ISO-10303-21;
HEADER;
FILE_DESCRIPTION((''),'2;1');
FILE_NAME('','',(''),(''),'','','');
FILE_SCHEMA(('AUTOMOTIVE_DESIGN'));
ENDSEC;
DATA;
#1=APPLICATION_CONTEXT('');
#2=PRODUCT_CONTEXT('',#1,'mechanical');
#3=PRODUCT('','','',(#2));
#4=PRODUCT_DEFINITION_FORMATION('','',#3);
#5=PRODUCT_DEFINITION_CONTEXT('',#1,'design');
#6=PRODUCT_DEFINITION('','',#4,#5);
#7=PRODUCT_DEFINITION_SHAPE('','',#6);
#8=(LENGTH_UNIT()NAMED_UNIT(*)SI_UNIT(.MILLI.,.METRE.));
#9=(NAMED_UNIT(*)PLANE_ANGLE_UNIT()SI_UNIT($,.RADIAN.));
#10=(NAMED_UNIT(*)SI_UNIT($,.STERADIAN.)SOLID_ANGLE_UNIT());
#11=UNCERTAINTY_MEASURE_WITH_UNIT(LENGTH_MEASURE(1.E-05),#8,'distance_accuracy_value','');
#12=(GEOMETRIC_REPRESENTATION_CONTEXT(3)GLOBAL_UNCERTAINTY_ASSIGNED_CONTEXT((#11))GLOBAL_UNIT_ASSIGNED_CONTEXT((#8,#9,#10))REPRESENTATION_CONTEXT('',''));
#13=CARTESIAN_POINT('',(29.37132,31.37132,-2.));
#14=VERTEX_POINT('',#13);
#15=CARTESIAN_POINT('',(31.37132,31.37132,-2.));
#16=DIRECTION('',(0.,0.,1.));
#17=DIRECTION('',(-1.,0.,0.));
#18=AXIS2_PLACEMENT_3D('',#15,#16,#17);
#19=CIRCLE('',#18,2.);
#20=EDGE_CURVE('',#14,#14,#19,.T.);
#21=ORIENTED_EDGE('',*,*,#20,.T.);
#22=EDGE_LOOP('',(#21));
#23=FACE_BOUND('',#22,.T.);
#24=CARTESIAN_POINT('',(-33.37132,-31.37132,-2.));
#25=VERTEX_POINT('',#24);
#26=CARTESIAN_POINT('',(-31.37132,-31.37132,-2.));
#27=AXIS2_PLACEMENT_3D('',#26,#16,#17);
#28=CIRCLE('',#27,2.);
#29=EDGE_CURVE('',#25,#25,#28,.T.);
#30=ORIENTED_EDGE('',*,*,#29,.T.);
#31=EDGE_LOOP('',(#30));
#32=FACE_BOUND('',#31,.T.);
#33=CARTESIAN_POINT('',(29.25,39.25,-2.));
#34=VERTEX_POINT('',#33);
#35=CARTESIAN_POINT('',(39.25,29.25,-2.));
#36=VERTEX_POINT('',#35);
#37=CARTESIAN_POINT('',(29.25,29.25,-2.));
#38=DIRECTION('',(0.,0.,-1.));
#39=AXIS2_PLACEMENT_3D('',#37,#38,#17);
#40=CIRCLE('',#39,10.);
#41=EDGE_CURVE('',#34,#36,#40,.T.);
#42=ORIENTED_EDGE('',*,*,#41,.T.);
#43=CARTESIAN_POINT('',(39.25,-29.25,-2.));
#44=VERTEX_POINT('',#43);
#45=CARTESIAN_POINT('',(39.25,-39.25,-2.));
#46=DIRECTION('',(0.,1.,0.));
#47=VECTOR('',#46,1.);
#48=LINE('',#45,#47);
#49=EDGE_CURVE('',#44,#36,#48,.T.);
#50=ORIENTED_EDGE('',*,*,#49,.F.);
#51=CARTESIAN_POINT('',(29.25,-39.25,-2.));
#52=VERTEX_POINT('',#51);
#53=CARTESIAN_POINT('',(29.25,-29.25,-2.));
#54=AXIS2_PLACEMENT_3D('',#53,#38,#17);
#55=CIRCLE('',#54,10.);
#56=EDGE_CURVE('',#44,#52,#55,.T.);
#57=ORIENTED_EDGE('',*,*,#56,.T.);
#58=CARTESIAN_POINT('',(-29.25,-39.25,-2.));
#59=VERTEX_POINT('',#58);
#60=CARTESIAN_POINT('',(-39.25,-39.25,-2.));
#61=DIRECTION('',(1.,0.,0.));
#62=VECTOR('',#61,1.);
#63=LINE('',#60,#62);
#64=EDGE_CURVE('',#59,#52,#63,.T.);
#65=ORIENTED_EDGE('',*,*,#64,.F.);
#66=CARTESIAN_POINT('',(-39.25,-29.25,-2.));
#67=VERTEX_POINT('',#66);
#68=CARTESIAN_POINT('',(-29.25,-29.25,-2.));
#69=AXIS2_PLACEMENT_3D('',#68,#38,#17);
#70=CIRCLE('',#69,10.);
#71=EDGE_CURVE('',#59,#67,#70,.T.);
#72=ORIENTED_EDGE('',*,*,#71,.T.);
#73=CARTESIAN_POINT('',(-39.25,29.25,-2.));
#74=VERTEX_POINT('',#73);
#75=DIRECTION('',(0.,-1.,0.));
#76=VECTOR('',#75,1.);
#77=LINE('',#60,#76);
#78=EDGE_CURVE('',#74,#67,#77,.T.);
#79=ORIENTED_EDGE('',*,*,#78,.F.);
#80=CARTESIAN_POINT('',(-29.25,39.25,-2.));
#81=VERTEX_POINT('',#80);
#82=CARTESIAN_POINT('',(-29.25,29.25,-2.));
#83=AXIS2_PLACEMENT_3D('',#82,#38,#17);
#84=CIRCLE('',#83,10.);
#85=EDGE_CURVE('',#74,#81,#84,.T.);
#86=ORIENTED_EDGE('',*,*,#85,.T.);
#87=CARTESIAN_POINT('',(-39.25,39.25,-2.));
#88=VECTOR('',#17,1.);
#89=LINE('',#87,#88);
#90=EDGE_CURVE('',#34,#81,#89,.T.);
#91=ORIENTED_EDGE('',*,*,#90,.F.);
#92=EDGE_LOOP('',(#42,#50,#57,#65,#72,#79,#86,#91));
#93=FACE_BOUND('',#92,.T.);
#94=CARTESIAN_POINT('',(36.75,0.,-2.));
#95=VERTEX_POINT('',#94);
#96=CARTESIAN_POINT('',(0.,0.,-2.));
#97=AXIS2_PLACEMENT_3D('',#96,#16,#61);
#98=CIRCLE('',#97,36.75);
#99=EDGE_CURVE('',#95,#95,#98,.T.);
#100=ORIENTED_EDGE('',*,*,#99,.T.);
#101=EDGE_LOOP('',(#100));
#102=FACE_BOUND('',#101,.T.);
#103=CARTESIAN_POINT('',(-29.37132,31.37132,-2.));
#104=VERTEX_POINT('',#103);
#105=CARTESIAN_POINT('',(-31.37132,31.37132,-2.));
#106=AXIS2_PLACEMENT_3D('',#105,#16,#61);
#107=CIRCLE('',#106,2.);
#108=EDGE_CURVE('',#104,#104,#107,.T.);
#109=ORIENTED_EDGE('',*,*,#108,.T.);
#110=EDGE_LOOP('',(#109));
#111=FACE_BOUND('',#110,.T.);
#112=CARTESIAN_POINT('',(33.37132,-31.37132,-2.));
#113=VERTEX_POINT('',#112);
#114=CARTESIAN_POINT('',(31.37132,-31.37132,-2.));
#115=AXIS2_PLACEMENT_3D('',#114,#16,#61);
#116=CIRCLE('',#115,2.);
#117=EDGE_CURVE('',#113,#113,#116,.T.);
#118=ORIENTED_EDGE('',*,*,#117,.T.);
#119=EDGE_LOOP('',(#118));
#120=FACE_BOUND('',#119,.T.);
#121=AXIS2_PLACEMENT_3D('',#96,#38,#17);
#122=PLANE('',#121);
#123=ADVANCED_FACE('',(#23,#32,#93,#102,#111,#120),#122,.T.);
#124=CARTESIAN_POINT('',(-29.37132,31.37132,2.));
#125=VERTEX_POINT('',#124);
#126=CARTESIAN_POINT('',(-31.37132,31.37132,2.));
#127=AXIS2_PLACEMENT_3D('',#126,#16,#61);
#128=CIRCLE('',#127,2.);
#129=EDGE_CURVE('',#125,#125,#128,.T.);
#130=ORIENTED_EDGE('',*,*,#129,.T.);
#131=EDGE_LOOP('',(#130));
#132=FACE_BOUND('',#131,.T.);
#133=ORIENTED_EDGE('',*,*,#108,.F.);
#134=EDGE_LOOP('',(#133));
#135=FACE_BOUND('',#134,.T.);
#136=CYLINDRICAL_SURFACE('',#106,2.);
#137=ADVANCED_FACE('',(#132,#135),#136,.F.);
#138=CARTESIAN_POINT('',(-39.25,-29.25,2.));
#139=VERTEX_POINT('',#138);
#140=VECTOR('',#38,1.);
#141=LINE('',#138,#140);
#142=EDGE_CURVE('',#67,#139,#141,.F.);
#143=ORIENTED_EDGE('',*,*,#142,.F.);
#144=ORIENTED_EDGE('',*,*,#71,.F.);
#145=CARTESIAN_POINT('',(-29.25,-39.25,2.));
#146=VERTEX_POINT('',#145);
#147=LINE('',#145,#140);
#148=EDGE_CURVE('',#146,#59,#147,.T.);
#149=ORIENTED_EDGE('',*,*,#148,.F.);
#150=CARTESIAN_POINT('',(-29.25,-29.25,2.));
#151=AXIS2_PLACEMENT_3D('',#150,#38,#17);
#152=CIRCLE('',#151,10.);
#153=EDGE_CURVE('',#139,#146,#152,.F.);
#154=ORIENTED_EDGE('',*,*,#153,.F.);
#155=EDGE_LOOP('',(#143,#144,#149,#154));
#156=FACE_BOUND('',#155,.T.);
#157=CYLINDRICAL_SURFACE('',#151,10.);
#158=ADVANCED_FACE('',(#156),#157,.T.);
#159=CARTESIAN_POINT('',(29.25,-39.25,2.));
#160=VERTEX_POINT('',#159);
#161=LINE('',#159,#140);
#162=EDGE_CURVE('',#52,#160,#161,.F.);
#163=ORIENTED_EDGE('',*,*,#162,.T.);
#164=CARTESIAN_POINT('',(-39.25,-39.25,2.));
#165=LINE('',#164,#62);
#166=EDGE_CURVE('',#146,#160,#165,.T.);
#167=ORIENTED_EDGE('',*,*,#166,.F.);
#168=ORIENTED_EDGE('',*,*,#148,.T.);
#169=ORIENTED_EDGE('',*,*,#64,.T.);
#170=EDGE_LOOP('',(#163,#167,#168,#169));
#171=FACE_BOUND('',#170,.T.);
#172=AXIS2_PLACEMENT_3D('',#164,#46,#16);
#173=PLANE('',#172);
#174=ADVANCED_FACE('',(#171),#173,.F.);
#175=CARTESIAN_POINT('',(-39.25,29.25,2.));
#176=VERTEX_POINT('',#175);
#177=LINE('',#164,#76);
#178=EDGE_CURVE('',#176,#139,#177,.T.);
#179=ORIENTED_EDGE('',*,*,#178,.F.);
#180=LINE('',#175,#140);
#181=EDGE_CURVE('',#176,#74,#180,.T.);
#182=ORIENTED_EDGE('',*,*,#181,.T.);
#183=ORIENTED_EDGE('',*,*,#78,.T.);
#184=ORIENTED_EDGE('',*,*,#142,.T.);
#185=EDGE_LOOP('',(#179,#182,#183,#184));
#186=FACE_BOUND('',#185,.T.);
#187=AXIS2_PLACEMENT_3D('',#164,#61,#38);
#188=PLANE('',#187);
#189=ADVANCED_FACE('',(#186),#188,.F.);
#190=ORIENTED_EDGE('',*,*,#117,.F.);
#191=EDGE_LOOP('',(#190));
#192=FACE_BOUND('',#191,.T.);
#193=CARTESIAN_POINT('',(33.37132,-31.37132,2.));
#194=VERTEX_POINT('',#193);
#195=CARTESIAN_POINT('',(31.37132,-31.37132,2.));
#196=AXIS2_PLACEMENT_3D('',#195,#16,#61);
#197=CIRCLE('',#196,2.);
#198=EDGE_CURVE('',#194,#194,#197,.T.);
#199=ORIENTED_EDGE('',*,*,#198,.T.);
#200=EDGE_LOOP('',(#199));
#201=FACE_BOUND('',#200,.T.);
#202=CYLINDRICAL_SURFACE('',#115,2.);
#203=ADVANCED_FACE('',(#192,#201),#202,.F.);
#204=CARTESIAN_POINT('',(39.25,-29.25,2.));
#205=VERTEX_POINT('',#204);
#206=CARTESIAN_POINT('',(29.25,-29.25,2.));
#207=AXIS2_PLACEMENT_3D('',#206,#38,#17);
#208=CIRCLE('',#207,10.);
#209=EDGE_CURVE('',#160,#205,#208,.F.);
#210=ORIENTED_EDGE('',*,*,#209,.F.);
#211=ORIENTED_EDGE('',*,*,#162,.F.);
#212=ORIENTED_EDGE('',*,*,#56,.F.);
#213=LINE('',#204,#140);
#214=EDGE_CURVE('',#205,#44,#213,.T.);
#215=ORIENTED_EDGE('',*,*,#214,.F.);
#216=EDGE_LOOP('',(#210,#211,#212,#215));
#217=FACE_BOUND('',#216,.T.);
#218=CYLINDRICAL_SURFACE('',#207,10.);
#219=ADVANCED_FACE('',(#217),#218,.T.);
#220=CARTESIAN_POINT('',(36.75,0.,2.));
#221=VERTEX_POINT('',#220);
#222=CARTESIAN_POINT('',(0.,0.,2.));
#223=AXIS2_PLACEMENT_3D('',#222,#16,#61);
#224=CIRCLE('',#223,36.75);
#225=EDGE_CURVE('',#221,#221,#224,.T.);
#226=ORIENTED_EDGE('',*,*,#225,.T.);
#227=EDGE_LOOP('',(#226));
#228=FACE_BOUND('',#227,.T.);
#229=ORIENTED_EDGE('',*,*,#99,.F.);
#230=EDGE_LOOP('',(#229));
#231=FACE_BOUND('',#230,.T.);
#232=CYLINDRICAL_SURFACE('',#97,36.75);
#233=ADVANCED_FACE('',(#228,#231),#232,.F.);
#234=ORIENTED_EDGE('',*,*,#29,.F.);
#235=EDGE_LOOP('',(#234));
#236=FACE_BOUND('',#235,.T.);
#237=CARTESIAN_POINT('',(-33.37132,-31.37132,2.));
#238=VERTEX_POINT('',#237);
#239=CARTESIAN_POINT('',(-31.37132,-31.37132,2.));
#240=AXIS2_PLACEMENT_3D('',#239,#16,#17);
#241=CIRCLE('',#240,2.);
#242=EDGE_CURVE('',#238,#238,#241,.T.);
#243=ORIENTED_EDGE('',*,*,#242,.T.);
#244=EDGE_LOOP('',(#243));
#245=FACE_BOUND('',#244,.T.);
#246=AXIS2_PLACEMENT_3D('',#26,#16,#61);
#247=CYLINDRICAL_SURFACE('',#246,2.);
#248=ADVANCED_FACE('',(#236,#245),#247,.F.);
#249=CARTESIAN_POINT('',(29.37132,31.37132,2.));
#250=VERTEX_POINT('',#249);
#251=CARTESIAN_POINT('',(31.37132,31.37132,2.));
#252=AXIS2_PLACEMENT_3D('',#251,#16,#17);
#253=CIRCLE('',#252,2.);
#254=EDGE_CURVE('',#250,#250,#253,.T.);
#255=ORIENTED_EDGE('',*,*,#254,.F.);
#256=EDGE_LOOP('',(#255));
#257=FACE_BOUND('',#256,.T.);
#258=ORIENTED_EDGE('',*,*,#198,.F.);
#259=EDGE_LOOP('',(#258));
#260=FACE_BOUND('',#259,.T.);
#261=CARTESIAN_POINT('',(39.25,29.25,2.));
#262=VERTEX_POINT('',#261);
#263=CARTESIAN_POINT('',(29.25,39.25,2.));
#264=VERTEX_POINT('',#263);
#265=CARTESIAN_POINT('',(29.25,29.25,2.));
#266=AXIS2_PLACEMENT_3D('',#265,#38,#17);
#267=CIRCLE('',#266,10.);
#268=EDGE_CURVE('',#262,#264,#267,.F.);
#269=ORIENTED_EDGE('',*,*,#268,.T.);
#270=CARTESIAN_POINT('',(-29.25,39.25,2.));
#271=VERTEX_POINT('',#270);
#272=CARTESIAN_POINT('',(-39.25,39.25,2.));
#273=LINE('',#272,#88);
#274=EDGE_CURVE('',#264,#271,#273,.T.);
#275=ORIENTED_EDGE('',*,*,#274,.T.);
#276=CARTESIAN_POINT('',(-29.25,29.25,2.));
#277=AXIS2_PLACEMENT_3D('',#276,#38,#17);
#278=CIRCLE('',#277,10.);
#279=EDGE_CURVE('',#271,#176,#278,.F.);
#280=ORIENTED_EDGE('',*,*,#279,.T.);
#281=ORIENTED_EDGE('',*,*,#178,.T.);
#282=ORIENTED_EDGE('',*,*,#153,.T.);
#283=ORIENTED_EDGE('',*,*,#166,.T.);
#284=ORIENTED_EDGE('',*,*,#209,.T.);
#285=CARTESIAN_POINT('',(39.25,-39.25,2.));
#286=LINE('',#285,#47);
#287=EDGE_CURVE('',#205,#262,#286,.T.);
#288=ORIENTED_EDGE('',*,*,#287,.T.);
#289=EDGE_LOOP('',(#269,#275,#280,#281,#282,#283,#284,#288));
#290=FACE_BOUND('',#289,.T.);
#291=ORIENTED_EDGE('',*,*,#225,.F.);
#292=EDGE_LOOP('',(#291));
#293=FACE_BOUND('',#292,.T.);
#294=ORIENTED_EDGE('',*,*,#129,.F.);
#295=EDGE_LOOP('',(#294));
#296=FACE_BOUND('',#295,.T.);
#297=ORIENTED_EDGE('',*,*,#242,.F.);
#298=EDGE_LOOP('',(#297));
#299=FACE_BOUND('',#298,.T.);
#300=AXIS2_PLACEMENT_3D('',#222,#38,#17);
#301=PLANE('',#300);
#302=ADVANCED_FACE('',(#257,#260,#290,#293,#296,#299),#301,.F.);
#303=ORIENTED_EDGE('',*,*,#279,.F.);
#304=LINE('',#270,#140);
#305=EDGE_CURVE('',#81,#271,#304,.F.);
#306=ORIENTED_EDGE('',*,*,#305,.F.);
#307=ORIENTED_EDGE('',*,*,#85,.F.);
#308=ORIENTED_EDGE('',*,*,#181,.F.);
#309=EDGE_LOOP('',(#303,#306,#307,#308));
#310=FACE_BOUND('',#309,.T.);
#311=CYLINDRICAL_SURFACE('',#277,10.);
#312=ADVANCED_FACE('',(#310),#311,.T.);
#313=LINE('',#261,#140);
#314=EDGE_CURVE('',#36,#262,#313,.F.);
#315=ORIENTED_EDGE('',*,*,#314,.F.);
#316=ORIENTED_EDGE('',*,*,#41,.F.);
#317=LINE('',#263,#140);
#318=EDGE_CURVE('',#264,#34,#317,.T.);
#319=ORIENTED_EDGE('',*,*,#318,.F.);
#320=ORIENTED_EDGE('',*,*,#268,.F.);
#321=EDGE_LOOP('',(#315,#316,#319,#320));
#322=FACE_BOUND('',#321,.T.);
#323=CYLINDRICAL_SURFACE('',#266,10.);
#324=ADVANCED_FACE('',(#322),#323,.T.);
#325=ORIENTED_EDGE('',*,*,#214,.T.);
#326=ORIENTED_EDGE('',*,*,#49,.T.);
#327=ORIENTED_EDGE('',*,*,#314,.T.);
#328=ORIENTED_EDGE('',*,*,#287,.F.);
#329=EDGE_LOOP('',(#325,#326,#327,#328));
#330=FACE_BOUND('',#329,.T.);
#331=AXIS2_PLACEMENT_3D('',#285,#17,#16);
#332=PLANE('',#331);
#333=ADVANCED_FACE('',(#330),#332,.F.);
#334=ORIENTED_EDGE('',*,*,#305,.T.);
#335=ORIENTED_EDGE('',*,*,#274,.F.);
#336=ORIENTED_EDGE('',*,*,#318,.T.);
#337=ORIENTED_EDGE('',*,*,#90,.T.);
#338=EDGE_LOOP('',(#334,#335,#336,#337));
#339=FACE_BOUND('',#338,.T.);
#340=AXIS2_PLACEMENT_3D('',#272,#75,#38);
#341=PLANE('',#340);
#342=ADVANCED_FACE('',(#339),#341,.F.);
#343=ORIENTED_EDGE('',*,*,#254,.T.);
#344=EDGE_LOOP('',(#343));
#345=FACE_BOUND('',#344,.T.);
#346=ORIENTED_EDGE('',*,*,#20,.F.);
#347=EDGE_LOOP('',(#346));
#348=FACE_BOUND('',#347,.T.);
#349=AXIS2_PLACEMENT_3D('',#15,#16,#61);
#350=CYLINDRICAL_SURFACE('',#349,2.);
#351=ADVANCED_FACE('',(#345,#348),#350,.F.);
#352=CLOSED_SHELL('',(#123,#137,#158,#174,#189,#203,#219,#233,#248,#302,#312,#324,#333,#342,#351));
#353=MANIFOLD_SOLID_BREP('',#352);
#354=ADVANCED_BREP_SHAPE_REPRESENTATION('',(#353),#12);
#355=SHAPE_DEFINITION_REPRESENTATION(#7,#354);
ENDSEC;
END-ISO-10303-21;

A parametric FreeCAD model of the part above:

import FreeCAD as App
import Part
import Sketcher
from FreeCAD import Vector
Q = App.Units.Quantity


def edges_at(feature, points):
    """Names of the edges that pass closest to the given points."""
    edges = feature.Shape.Edges
    near = lambda p: min(range(len(edges)), key=lambda i: edges[i].distToShape(Part.Vertex(*p))[0])
    return sorted({f"Edge{near(p) + 1}" for p in points})

doc = App.newDocument("Part")
body = doc.addObject("PartDesign::Body", "Body")

sketch1 = doc.addObject("Sketcher::SketchObject", "Sketch")
body.addObject(sketch1)
sketch1.AttachmentSupport = (doc.XY_Plane, [""])
sketch1.MapMode = "FlatFace"
sketch1.addGeometry([
    Part.LineSegment(Vector(-39, 39, 0), Vector(-39, -39, 0)),
    Part.LineSegment(Vector(-39, -39, 0), Vector(39, -39, 0)),
    Part.LineSegment(Vector(39, -39, 0), Vector(39, 39, 0)),
    Part.LineSegment(Vector(39, 39, 0), Vector(-39, 39, 0)),
], False)
sketch1.addConstraint([
    Sketcher.Constraint("Coincident", 0, 2, 1, 1),
    Sketcher.Constraint("Coincident", 1, 2, 2, 1),
    Sketcher.Constraint("Coincident", 2, 2, 3, 1),
    Sketcher.Constraint("Coincident", 3, 2, 0, 1),
    Sketcher.Constraint("Vertical", 0),
    Sketcher.Constraint("Horizontal", 1),
    Sketcher.Constraint("Vertical", 2),
    Sketcher.Constraint("Horizontal", 3),
    Sketcher.Constraint("Symmetric", 0, 2, 2, 2, -1, 1),
    Sketcher.Constraint("Equal", 3, 0),
    Sketcher.Constraint("DistanceX", 1, 1, 1, 2, Q("78.5 mm")),
])
pad1 = doc.addObject("PartDesign::Pad", "Pad")
body.addObject(pad1)
pad1.Profile = sketch1
pad1.Length = 4
pad1.Midplane = True
doc.recompute()

fillet = doc.addObject("PartDesign::Fillet", "Fillet")
body.addObject(fillet)
fillet.Base = (pad1, edges_at(pad1, [
    (39.25, -39.25, 0),
    (-39.25, -39.25, 0),
    (-39.25, 39.25, 0),
    (39.25, 39.25, 0),
]))
fillet.Radius = 10

sketch2 = doc.addObject("Sketcher::SketchObject", "Sketch001")
body.addObject(sketch2)
sketch2.AttachmentSupport = (doc.XY_Plane, [""])
sketch2.MapMode = "FlatFace"
sketch2.AttachmentOffset = App.Placement(Vector(0, 0, 2), App.Rotation())
sketch2.addGeometry([
    Part.Circle(Vector(-31.4, 31.4, 0), Vector(0, 0, 1), 2),
    Part.Circle(Vector(-31.4, -31.4, 0), Vector(0, 0, 1), 2),
    Part.Circle(Vector(31.4, 31.4, 0), Vector(0, 0, 1), 2),
    Part.Circle(Vector(31.4, -31.4, 0), Vector(0, 0, 1), 2),
], False)
sketch2.addConstraint([
    Sketcher.Constraint("Equal", 0, 1),
    Sketcher.Constraint("Equal", 1, 2),
    Sketcher.Constraint("Equal", 2, 3),
    Sketcher.Constraint("Symmetric", 1, 3, 2, 3, -1, 1),
    Sketcher.Constraint("Symmetric", 0, 3, 3, 3, -1, 1),
    Sketcher.Constraint("Symmetric", 0, 3, 2, 3, -2),
    Sketcher.Constraint("Diameter", 0, Q("4 mm")),
    Sketcher.Constraint("DistanceX", 0, 3, -1, 1, Q("31.37132 mm")),
    Sketcher.Constraint("DistanceY", -1, 1, 0, 3, Q("31.37132 mm")),
])
pocket1 = doc.addObject("PartDesign::Pocket", "Pocket")
body.addObject(pocket1)
pocket1.Profile = sketch2
pocket1.Type = "ThroughAll"

sketch3 = doc.addObject("Sketcher::SketchObject", "Sketch002")
body.addObject(sketch3)
sketch3.AttachmentSupport = (doc.XY_Plane, [""])
sketch3.MapMode = "FlatFace"
sketch3.AttachmentOffset = App.Placement(Vector(0, 0, 2), App.Rotation())
sketch3.addGeometry(Part.Circle(Vector(0, 0, 0), Vector(0, 0, 1), 37), False)
sketch3.addConstraint([
    Sketcher.Constraint("Coincident", 0, 3, -1, 1),
    Sketcher.Constraint("Diameter", 0, Q("73.5 mm")),
])
pocket2 = doc.addObject("PartDesign::Pocket", "Pocket001")
body.addObject(pocket2)
pocket2.Profile = sketch3
pocket2.Type = "ThroughAll"

doc.recompute()
